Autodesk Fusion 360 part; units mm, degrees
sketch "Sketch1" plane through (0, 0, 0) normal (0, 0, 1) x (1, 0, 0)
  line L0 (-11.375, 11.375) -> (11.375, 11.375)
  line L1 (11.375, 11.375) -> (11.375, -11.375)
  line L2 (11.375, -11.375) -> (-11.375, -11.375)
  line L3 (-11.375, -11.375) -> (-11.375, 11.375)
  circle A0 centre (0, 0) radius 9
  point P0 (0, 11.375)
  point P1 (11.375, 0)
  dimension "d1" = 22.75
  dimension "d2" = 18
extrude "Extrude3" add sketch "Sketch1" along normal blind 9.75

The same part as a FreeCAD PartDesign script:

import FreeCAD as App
import Part
import Sketcher
from FreeCAD import Vector
Q = App.Units.Quantity

doc = App.newDocument("Part")
params = doc.addObject("Spreadsheet::Sheet", "Params")
for row, (alias, value) in enumerate([
    ("sketch1_diameter", "18 mm"),
    ("sketch1_width", "22.75 mm"),
    ("pad1_length", "9.75 mm"),
], start=1):
    params.set(f"A{row}", alias)
    params.set(f"B{row}", "=" + value)
    params.setAlias(f"B{row}", alias)

body = doc.addObject("PartDesign::Body", "Body")

sketch1 = body.newObject("Sketcher::SketchObject", "Sketch")
sketch1.AttachmentSupport = (doc.getObject("XY_Plane"), [""])
sketch1.MapMode = "FlatFace"
sketch1.addGeometry([
    Part.LineSegment(Vector(11.375, 11.375, 0), Vector(-11.375, 11.375, 0)),
    Part.LineSegment(Vector(-11.375, 11.375, 0), Vector(-11.375, -11.375, 0)),
    Part.LineSegment(Vector(-11.375, -11.375, 0), Vector(11.375, -11.375, 0)),
    Part.LineSegment(Vector(11.375, -11.375, 0), Vector(11.375, 11.375, 0)),
    Part.Circle(Vector(0, 0, 0), Vector(0, 0, 1), 9),
], False)
sketch1.addConstraint([
    Sketcher.Constraint("Coincident", 0, 2, 1, 1),
    Sketcher.Constraint("Coincident", 1, 2, 2, 1),
    Sketcher.Constraint("Coincident", 2, 2, 3, 1),
    Sketcher.Constraint("Coincident", 3, 2, 0, 1),
    Sketcher.Constraint("Horizontal", 0),
    Sketcher.Constraint("Vertical", 1),
    Sketcher.Constraint("Horizontal", 2),
    Sketcher.Constraint("Vertical", 3),
    Sketcher.Constraint("Coincident", 4, 3, -1, 1),
    Sketcher.Constraint("Symmetric", 0, 2, 2, 2, -1, 1),
    Sketcher.Constraint("Equal", 2, 1),
    Sketcher.Constraint("Diameter", 4, Q("18 mm")),
    Sketcher.Constraint("DistanceX", 0, 2, 0, 1, Q("22.75 mm")),
])
sketch1.setExpression("Constraints[11]", "Params.sketch1_diameter")
sketch1.setExpression("Constraints[12]", "Params.sketch1_width")
pad1 = body.newObject("PartDesign::Pad", "Pad")
pad1.Profile = sketch1
pad1.setExpression("Length", "Params.pad1_length")

doc.recompute()
